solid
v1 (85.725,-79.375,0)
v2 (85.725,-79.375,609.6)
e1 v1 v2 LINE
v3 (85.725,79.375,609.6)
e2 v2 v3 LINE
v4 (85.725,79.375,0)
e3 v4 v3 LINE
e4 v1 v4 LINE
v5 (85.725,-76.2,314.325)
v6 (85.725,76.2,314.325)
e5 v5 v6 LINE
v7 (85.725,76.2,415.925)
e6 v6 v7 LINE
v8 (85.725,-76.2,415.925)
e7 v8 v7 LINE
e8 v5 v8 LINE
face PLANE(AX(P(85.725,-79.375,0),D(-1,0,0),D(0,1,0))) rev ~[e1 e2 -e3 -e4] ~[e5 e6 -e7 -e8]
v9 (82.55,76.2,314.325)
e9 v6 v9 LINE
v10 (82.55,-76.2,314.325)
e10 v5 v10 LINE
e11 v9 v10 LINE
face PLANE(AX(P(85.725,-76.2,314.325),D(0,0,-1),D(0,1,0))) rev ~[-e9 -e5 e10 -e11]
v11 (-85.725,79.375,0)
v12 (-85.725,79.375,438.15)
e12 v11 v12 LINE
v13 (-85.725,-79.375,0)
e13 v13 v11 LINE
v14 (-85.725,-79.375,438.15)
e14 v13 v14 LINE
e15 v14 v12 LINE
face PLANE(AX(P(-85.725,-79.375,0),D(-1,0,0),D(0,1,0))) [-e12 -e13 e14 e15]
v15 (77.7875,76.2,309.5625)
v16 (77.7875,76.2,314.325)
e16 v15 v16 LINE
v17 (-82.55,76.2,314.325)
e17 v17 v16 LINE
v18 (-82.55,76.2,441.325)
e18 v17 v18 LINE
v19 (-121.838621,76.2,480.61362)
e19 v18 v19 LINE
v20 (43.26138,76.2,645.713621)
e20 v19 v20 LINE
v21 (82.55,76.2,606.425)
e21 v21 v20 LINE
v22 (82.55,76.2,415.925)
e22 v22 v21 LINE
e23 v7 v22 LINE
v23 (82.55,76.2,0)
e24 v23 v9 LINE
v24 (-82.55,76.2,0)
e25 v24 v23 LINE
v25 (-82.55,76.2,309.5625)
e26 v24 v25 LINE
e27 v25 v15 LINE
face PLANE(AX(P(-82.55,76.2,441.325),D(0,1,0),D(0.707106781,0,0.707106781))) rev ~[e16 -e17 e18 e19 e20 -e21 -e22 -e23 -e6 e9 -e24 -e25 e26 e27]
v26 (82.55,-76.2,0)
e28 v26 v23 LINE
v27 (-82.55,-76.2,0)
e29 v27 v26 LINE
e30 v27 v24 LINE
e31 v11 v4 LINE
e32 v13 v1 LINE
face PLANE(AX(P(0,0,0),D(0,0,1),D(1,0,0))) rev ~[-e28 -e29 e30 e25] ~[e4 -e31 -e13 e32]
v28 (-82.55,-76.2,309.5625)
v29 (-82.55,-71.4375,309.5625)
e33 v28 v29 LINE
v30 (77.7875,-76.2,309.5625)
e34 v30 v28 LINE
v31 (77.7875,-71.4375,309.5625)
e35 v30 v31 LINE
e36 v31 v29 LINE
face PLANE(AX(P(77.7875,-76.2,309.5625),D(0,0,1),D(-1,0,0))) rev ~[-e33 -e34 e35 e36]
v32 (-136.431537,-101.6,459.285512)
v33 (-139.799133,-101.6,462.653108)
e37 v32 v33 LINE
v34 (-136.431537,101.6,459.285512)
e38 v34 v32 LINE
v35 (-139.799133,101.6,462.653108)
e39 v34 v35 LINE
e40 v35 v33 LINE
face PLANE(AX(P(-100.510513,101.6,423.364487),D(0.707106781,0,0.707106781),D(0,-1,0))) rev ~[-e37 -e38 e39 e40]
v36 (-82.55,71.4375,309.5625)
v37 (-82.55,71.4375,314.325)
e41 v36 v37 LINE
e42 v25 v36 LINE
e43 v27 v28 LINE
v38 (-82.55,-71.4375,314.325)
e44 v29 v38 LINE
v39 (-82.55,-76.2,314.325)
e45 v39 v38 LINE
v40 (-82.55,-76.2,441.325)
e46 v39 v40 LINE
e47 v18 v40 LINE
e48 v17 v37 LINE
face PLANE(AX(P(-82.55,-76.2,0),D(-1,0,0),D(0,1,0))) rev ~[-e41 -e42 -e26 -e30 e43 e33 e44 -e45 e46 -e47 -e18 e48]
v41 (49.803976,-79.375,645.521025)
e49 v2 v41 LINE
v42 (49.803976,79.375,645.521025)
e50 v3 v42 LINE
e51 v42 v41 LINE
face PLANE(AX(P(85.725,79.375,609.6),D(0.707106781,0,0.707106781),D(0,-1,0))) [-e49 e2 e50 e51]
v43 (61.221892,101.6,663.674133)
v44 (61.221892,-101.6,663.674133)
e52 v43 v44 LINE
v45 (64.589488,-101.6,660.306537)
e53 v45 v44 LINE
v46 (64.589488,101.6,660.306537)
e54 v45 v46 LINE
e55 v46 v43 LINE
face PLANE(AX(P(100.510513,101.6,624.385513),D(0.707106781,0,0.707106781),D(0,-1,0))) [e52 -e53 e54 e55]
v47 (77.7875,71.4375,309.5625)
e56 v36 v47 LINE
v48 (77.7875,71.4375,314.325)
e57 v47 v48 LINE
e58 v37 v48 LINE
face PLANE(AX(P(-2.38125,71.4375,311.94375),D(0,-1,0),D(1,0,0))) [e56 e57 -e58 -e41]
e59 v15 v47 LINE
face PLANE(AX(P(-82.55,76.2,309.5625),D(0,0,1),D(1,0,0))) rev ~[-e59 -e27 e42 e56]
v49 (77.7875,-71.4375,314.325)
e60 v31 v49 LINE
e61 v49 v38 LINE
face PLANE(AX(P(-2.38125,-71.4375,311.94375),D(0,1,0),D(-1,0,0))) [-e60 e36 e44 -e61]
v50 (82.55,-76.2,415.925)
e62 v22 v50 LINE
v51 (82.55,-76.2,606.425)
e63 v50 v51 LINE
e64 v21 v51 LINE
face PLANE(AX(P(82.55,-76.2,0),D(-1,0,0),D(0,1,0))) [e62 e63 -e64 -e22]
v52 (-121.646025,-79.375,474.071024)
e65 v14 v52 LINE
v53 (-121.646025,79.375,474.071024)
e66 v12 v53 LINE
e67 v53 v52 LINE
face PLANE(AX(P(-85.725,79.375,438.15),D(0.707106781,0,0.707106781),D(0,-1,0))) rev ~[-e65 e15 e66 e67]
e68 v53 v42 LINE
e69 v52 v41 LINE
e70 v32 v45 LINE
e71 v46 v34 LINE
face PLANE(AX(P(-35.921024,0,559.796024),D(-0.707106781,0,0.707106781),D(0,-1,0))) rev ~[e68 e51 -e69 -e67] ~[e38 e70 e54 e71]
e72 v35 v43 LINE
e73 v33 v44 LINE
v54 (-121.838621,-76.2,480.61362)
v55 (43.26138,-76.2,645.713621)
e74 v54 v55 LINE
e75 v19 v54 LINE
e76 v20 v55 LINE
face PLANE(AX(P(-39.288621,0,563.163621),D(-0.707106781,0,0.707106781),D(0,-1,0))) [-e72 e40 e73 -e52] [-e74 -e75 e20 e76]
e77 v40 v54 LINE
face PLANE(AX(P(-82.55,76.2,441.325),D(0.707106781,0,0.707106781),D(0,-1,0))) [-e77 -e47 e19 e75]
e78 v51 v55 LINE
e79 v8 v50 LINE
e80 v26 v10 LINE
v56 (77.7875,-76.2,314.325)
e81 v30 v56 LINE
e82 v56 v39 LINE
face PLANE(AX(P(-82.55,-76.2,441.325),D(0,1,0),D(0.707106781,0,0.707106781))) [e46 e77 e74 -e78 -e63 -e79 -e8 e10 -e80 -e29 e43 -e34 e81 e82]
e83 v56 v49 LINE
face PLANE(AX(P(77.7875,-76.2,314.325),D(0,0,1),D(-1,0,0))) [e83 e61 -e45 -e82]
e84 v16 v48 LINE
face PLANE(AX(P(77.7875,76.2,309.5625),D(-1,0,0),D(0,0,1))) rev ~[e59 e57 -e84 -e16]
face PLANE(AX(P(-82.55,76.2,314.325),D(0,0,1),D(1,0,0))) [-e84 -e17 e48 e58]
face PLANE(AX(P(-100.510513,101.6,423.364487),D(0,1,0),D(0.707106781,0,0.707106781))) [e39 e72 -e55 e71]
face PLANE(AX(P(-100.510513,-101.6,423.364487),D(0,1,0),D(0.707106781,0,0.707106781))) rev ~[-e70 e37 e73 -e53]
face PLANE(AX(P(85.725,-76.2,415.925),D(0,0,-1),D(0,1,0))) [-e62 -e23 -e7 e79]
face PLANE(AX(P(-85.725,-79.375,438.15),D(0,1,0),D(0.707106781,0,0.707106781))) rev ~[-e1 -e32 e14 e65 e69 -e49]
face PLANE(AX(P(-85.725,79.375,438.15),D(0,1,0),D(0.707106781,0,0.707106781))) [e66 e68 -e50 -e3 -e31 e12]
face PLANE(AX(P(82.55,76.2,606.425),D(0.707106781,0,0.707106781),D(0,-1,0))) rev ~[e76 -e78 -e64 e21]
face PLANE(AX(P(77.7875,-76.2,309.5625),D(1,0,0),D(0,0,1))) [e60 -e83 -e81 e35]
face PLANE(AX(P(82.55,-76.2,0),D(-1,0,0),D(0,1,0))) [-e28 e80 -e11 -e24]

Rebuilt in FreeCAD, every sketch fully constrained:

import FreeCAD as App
import Part
import Sketcher

V = App.Vector
Q = App.Units.Quantity

doc = App.newDocument("Part")
body = doc.addObject("PartDesign::Body", "Body")

# Sketch on XY plane
sketch1 = body.newObject("Sketcher::SketchObject", "Sketch")
sketch1.AttachmentSupport = (doc.getObject("XY_Plane"), [""])
sketch1.MapMode = "FlatFace"
sketch1.addGeometry(Part.LineSegment(V(-85.725, 79.375, 0), V(-85.725, -79.375, 0)), False)
sketch1.addGeometry(Part.LineSegment(V(-85.725, -79.375, 0), V(85.725, -79.375, 0)), False)
sketch1.addGeometry(Part.LineSegment(V(85.725, -79.375, 0), V(85.725, 79.375, 0)), False)
sketch1.addGeometry(Part.LineSegment(V(85.725, 79.375, 0), V(-85.725, 79.375, 0)), False)
sketch1.addGeometry(Part.LineSegment(V(82.55, -76.2, 0), V(-82.55, -76.2, 0)), False)
sketch1.addGeometry(Part.LineSegment(V(-82.55, -76.2, 0), V(-82.55, 76.2, 0)), False)
sketch1.addGeometry(Part.LineSegment(V(-82.55, 76.2, 0), V(82.55, 76.2, 0)), False)
sketch1.addGeometry(Part.LineSegment(V(82.55, 76.2, 0), V(82.55, -76.2, 0)), False)
sketch1.addConstraint(Sketcher.Constraint("Coincident", 0, 2, 1, 1))
sketch1.addConstraint(Sketcher.Constraint("Coincident", 1, 2, 2, 1))
sketch1.addConstraint(Sketcher.Constraint("Coincident", 2, 2, 3, 1))
sketch1.addConstraint(Sketcher.Constraint("Coincident", 3, 2, 0, 1))
sketch1.addConstraint(Sketcher.Constraint("Coincident", 4, 2, 5, 1))
sketch1.addConstraint(Sketcher.Constraint("Coincident", 5, 2, 6, 1))
sketch1.addConstraint(Sketcher.Constraint("Coincident", 6, 2, 7, 1))
sketch1.addConstraint(Sketcher.Constraint("Coincident", 7, 2, 4, 1))
sketch1.addConstraint(Sketcher.Constraint("Vertical", 0))
sketch1.addConstraint(Sketcher.Constraint("Horizontal", 1))
sketch1.addConstraint(Sketcher.Constraint("Vertical", 2))
sketch1.addConstraint(Sketcher.Constraint("Horizontal", 3))
sketch1.addConstraint(Sketcher.Constraint("Horizontal", 4))
sketch1.addConstraint(Sketcher.Constraint("Vertical", 5))
sketch1.addConstraint(Sketcher.Constraint("Horizontal", 6))
sketch1.addConstraint(Sketcher.Constraint("Vertical", 7))
sketch1.addConstraint(Sketcher.Constraint("Symmetric", 0, 2, 2, 2, -1, 1))
sketch1.addConstraint(Sketcher.Constraint("Symmetric", 4, 2, 6, 2, -1, 1))
sketch1.addConstraint(Sketcher.Constraint("DistanceY", 5, 1, 5, 2, Q("6 in")))
sketch1.addConstraint(Sketcher.Constraint("DistanceX", 4, 2, 4, 1, Q("6.5 in")))
sketch1.addConstraint(Sketcher.Constraint("DistanceX", 1, 1, 1, 2, Q("6.75 in")))
sketch1.addConstraint(Sketcher.Constraint("DistanceY", 0, 2, 0, 1, Q("6.25 in")))
pad1 = body.newObject("PartDesign::Pad", "Pad")
pad1.Profile = sketch1
pad1.Length = Q("24 in")

# Sketch on XZ plane
sketch2 = body.newObject("Sketcher::SketchObject", "Sketch001")
sketch2.AttachmentSupport = (doc.getObject("XZ_Plane"), [""])
sketch2.MapMode = "FlatFace"
sketch2.AttachmentOffset = App.Placement(V(0, 0, 3.125 * 25.4), App.Rotation())
sketch2.addGeometry(Part.LineSegment(V(-85.725, 438.15, 0), V(85.725, 609.6, 0)), False)
sketch2.addGeometry(Part.LineSegment(V(85.725, 609.6, 0), V(-85.725, 609.6, 0)), False)
sketch2.addGeometry(Part.LineSegment(V(-85.725, 609.6, 0), V(-85.725, 438.15, 0)), False)
sketch2.addConstraint(Sketcher.Constraint("Coincident", 0, 2, 1, 1))
sketch2.addConstraint(Sketcher.Constraint("Coincident", 1, 2, 2, 1))
sketch2.addConstraint(Sketcher.Constraint("Coincident", 2, 2, 0, 1))
sketch2.addConstraint(Sketcher.Constraint("Horizontal", 1))
sketch2.addConstraint(Sketcher.Constraint("Vertical", 2))
sketch2.addConstraint(Sketcher.Constraint("Equal", 1, 2))
sketch2.addConstraint(Sketcher.Constraint("DistanceY", -1, 1, 0, 2, Q("24 in")))
sketch2.addConstraint(Sketcher.Constraint("DistanceX", 1, 2, 1, 1, Q("6.75 in")))
sketch2.addConstraint(Sketcher.Constraint("DistanceX", -1, 1, 0, 2, Q("3.375 in")))
pocket1 = body.newObject("PartDesign::Pocket", "Pocket")
pocket1.Profile = sketch2
pocket1.Type = "ThroughAll"

# Sketch on an angled plane
sketch3 = body.newObject("Sketcher::SketchObject", "Sketch002")
sketch3.Placement = App.Placement(V(-261.9375, 0, 261.9375), App.Rotation(V(0, -1, 0), V(0.707106781, 0, 0.707106781), V(-0.707106781, 0, 0.707106781), "ZXY"))
sketch3.addGeometry(Part.LineSegment(V(-101.6, 512.578895, 0), V(-101.6, 228.292235, 0)), False)
sketch3.addGeometry(Part.LineSegment(V(-101.6, 228.292235, 0), V(101.6, 228.292235, 0)), False)
sketch3.addGeometry(Part.LineSegment(V(101.6, 228.292235, 0), V(101.6, 512.578895, 0)), False)
sketch3.addGeometry(Part.LineSegment(V(101.6, 512.578895, 0), V(-101.6, 512.578895, 0)), False)
sketch3.addGeometry(Part.LineSegment(V(76.2, 253.692235, 0), V(-76.2, 253.692235, 0)), False)
sketch3.addGeometry(Part.LineSegment(V(-76.2, 253.692235, 0), V(-76.2, 487.178895, 0)), False)
sketch3.addGeometry(Part.LineSegment(V(-76.2, 487.178895, 0), V(76.2, 487.178895, 0)), False)
sketch3.addGeometry(Part.LineSegment(V(76.2, 487.178895, 0), V(76.2, 253.692235, 0)), False)
sketch3.addConstraint(Sketcher.Constraint("Coincident", 0, 2, 1, 1))
sketch3.addConstraint(Sketcher.Constraint("Coincident", 1, 2, 2, 1))
sketch3.addConstraint(Sketcher.Constraint("Coincident", 2, 2, 3, 1))
sketch3.addConstraint(Sketcher.Constraint("Coincident", 3, 2, 0, 1))
sketch3.addConstraint(Sketcher.Constraint("Coincident", 4, 2, 5, 1))
sketch3.addConstraint(Sketcher.Constraint("Coincident", 5, 2, 6, 1))
sketch3.addConstraint(Sketcher.Constraint("Coincident", 6, 2, 7, 1))
sketch3.addConstraint(Sketcher.Constraint("Coincident", 7, 2, 4, 1))
sketch3.addConstraint(Sketcher.Constraint("Vertical", 0))
sketch3.addConstraint(Sketcher.Constraint("Horizontal", 1))
sketch3.addConstraint(Sketcher.Constraint("Vertical", 2))
sketch3.addConstraint(Sketcher.Constraint("Horizontal", 3))
sketch3.addConstraint(Sketcher.Constraint("Horizontal", 4))
sketch3.addConstraint(Sketcher.Constraint("Vertical", 5))
sketch3.addConstraint(Sketcher.Constraint("Horizontal", 6))
sketch3.addConstraint(Sketcher.Constraint("Vertical", 7))
sketch3.addConstraint(Sketcher.Constraint("DistanceX", 1, 1, 1, 2, Q("8 in")))
sketch3.addConstraint(Sketcher.Constraint("DistanceX", 4, 2, 4, 1, Q("6 in")))
sketch3.addConstraint(Sketcher.Constraint("DistanceX", 0, 2, -1, 1, Q("4 in")))
sketch3.addConstraint(Sketcher.Constraint("DistanceX", 4, 2, -1, 1, Q("3 in")))
sketch3.addConstraint(Sketcher.Constraint("DistanceY", 0, 2, 4, 2, Q("1 in")))
sketch3.addConstraint(Sketcher.Constraint("DistanceY", 5, 2, 3, 2, Q("1 in")))
sketch3.addConstraint(Sketcher.Constraint("DistanceY", 0, 2, 0, 1, 284.28666))
sketch3.addConstraint(Sketcher.Constraint("DistanceY", -1, 1, 0, 2, 228.292235))
pad2 = body.newObject("PartDesign::Pad", "Pad001")
pad2.Profile = sketch3
pad2.Length = Q("2.1875 in")

# Sketch on YZ plane
sketch4 = body.newObject("Sketcher::SketchObject", "Sketch003")
sketch4.AttachmentSupport = (doc.getObject("YZ_Plane"), [""])
sketch4.MapMode = "FlatFace"
sketch4.AttachmentOffset = App.Placement(V(0, 0, 3.375 * 25.4), App.Rotation())
sketch4.addGeometry(Part.LineSegment(V(-76.2, 415.925, 0), V(-76.2, 314.325, 0)), False)
sketch4.addGeometry(Part.LineSegment(V(-76.2, 314.325, 0), V(76.2, 314.325, 0)), False)
sketch4.addGeometry(Part.LineSegment(V(76.2, 314.325, 0), V(76.2, 415.925, 0)), False)
sketch4.addGeometry(Part.LineSegment(V(76.2, 415.925, 0), V(-76.2, 415.925, 0)), False)
sketch4.addConstraint(Sketcher.Constraint("Coincident", 0, 2, 1, 1))
sketch4.addConstraint(Sketcher.Constraint("Coincident", 1, 2, 2, 1))
sketch4.addConstraint(Sketcher.Constraint("Coincident", 2, 2, 3, 1))
sketch4.addConstraint(Sketcher.Constraint("Coincident", 3, 2, 0, 1))
sketch4.addConstraint(Sketcher.Constraint("Vertical", 0))
sketch4.addConstraint(Sketcher.Constraint("Horizontal", 1))
sketch4.addConstraint(Sketcher.Constraint("Vertical", 2))
sketch4.addConstraint(Sketcher.Constraint("Horizontal", 3))
sketch4.addConstraint(Sketcher.Constraint("DistanceX", 1, 1, 1, 2, Q("6 in")))
sketch4.addConstraint(Sketcher.Constraint("DistanceY", 0, 2, 0, 1, Q("4 in")))
sketch4.addConstraint(Sketcher.Constraint("DistanceX", 0, 2, -1, 1, Q("3 in")))
sketch4.addConstraint(Sketcher.Constraint("DistanceY", -1, 1, 0, 2, Q("12.375 in")))
pocket2 = body.newObject("PartDesign::Pocket", "Pocket001")
pocket2.Profile = sketch4
pocket2.Length = Q("1 in")

# Sketch on XZ plane
sketch5 = body.newObject("Sketcher::SketchObject", "Sketch004")
sketch5.AttachmentSupport = (doc.getObject("XZ_Plane"), [""])
sketch5.MapMode = "FlatFace"
sketch5.AttachmentOffset = App.Placement(V(0, 0, 3 * 25.4), App.Rotation())
sketch5.addGeometry(Part.LineSegment(V(77.7875, 314.325, 0), V(77.7875, 309.5625, 0)), False)
sketch5.addGeometry(Part.LineSegment(V(77.7875, 309.5625, 0), V(-82.55, 309.5625, 0)), False)
sketch5.addGeometry(Part.LineSegment(V(-82.55, 309.5625, 0), V(-82.55, 314.325, 0)), False)
sketch5.addGeometry(Part.LineSegment(V(-82.55, 314.325, 0), V(77.7875, 314.325, 0)), False)
sketch5.addConstraint(Sketcher.Constraint("Coincident", 0, 2, 1, 1))
sketch5.addConstraint(Sketcher.Constraint("Coincident", 1, 2, 2, 1))
sketch5.addConstraint(Sketcher.Constraint("Coincident", 2, 2, 3, 1))
sketch5.addConstraint(Sketcher.Constraint("Coincident", 3, 2, 0, 1))
sketch5.addConstraint(Sketcher.Constraint("Vertical", 0))
sketch5.addConstraint(Sketcher.Constraint("Horizontal", 1))
sketch5.addConstraint(Sketcher.Constraint("Vertical", 2))
sketch5.addConstraint(Sketcher.Constraint("Horizontal", 3))
sketch5.addConstraint(Sketcher.Constraint("DistanceX", 1, 2, 1, 1, Q("6.3125 in")))
sketch5.addConstraint(Sketcher.Constraint("DistanceY", 0, 2, 0, 1, Q("0.1875 in")))
sketch5.addConstraint(Sketcher.Constraint("DistanceX", 1, 2, -1, 1, Q("3.25 in")))
sketch5.addConstraint(Sketcher.Constraint("DistanceY", -1, 1, 0, 2, Q("12.1875 in")))
pad3 = body.newObject("PartDesign::Pad", "Pad002")
pad3.Profile = sketch5
pad3.Length = Q("0.1875 in")
pad3.Reversed = True

# Sketch on XZ plane
sketch6 = body.newObject("Sketcher::SketchObject", "Sketch005")
sketch6.AttachmentSupport = (doc.getObject("XZ_Plane"), [""])
sketch6.MapMode = "FlatFace"
sketch6.AttachmentOffset = App.Placement(V(0, 0, -3 * 25.4), App.Rotation())
sketch6.addGeometry(Part.LineSegment(V(-82.55, 314.325, 0), V(-82.55, 309.5625, 0)), False)
sketch6.addGeometry(Part.LineSegment(V(-82.55, 309.5625, 0), V(77.7875, 309.5625, 0)), False)
sketch6.addGeometry(Part.LineSegment(V(77.7875, 309.5625, 0), V(77.7875, 314.325, 0)), False)
sketch6.addGeometry(Part.LineSegment(V(77.7875, 314.325, 0), V(-82.55, 314.325, 0)), False)
sketch6.addConstraint(Sketcher.Constraint("Coincident", 0, 2, 1, 1))
sketch6.addConstraint(Sketcher.Constraint("Coincident", 1, 2, 2, 1))
sketch6.addConstraint(Sketcher.Constraint("Coincident", 2, 2, 3, 1))
sketch6.addConstraint(Sketcher.Constraint("Coincident", 3, 2, 0, 1))
sketch6.addConstraint(Sketcher.Constraint("Vertical", 0))
sketch6.addConstraint(Sketcher.Constraint("Horizontal", 1))
sketch6.addConstraint(Sketcher.Constraint("Vertical", 2))
sketch6.addConstraint(Sketcher.Constraint("Horizontal", 3))
sketch6.addConstraint(Sketcher.Constraint("DistanceX", 1, 1, 1, 2, Q("6.3125 in")))
sketch6.addConstraint(Sketcher.Constraint("DistanceY", 0, 2, 0, 1, Q("0.1875 in")))
sketch6.addConstraint(Sketcher.Constraint("DistanceX", 0, 2, -1, 1, Q("3.25 in")))
sketch6.addConstraint(Sketcher.Constraint("DistanceY", -1, 1, 0, 2, Q("12.1875 in")))
pad4 = body.newObject("PartDesign::Pad", "Pad003")
pad4.Profile = sketch6
pad4.Length = Q("0.1875 in")

# Sketch on an angled plane
sketch7 = body.newObject("Sketcher::SketchObject", "Sketch006")
sketch7.Placement = App.Placement(V(-261.9375, 0, 261.9375), App.Rotation(V(0, -1, 0), V(0.707106781, 0, 0.707106781), V(-0.707106781, 0, 0.707106781), "ZXY"))
sketch7.addGeometry(Part.LineSegment(V(101.6, 512.578895, 0), V(-101.6, 512.578895, 0)), False)
sketch7.addGeometry(Part.LineSegment(V(-101.6, 512.578895, 0), V(-101.6, 228.292235, 0)), False)
sketch7.addGeometry(Part.LineSegment(V(-101.6, 228.292235, 0), V(101.6, 228.292235, 0)), False)
sketch7.addGeometry(Part.LineSegment(V(101.6, 228.292235, 0), V(101.6, 512.578895, 0)), False)
sketch7.addGeometry(Part.LineSegment(V(79.375, 249.202107, 0), V(-79.375, 249.202107, 0)), False)
sketch7.addGeometry(Part.LineSegment(V(-79.375, 249.202107, 0), V(-79.375, 491.669023, 0)), False)
sketch7.addGeometry(Part.LineSegment(V(-79.375, 491.669023, 0), V(79.375, 491.669023, 0)), False)
sketch7.addGeometry(Part.LineSegment(V(79.375, 491.669023, 0), V(79.375, 249.202107, 0)), False)
sketch7.addConstraint(Sketcher.Constraint("Coincident", 0, 2, 1, 1))
sketch7.addConstraint(Sketcher.Constraint("Coincident", 1, 2, 2, 1))
sketch7.addConstraint(Sketcher.Constraint("Coincident", 2, 2, 3, 1))
sketch7.addConstraint(Sketcher.Constraint("Coincident", 3, 2, 0, 1))
sketch7.addConstraint(Sketcher.Constraint("Coincident", 4, 2, 5, 1))
sketch7.addConstraint(Sketcher.Constraint("Coincident", 5, 2, 6, 1))
sketch7.addConstraint(Sketcher.Constraint("Coincident", 6, 2, 7, 1))
sketch7.addConstraint(Sketcher.Constraint("Coincident", 7, 2, 4, 1))
sketch7.addConstraint(Sketcher.Constraint("Horizontal", 0))
sketch7.addConstraint(Sketcher.Constraint("Vertical", 1))
sketch7.addConstraint(Sketcher.Constraint("Horizontal", 2))
sketch7.addConstraint(Sketcher.Constraint("Vertical", 3))
sketch7.addConstraint(Sketcher.Constraint("Horizontal", 4))
sketch7.addConstraint(Sketcher.Constraint("Vertical", 5))
sketch7.addConstraint(Sketcher.Constraint("Horizontal", 6))
sketch7.addConstraint(Sketcher.Constraint("Vertical", 7))
sketch7.addConstraint(Sketcher.Constraint("DistanceX", 0, 2, 0, 1, Q("8 in")))
sketch7.addConstraint(Sketcher.Constraint("DistanceX", 0, 2, -1, 1, Q("4 in")))
sketch7.addConstraint(Sketcher.Constraint("DistanceX", 4, 2, 4, 1, Q("6.25 in")))
sketch7.addConstraint(Sketcher.Constraint("DistanceX", 4, 2, -1, 1, Q("3.125 in")))
sketch7.addConstraint(Sketcher.Constraint("DistanceY", 1, 2, 1, 1, 284.28666))
sketch7.addConstraint(Sketcher.Constraint("DistanceY", 5, 1, 5, 2, 242.466916))
sketch7.addConstraint(Sketcher.Constraint("DistanceY", 1, 2, 4, 2, 20.909872))
sketch7.addConstraint(Sketcher.Constraint("DistanceY", -1, 1, 0, 2, 512.578895))
pocket3 = body.newObject("PartDesign::Pocket", "Pocket002")
pocket3.Profile = sketch7
pocket3.Length = Q("2 in")
pocket3.Reversed = True

doc.recompute()
